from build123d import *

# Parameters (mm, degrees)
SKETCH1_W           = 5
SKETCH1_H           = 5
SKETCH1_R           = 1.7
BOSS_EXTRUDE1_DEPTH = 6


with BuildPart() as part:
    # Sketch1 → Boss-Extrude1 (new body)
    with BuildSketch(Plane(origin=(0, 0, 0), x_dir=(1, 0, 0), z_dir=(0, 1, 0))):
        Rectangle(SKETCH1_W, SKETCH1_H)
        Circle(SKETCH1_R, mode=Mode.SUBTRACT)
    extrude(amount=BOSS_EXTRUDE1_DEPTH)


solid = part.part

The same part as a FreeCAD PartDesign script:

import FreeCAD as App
import Part
import Sketcher
Q = App.Units.Quantity


def add_polygon(sketch, points):
    """Adds a closed chain of lines whose ends are joined by coincident constraints."""
    first, n = sketch.GeometryCount, len(points)
    for a, b in zip(points, points[1:] + points[:1]):
        sketch.addGeometry(Part.LineSegment(App.Vector(*a, 0), App.Vector(*b, 0)), False)
    for i in range(n):
        sketch.addConstraint(Sketcher.Constraint("Coincident", first + i, 2, first + (i + 1) % n, 1))

doc = App.newDocument("Part")
body = doc.addObject("PartDesign::Body", "Body")

# Sketch on XZ plane
sketch1 = body.newObject("Sketcher::SketchObject", "Sketch")
sketch1.AttachmentSupport = (doc.getObject("XZ_Plane"), [""])
sketch1.MapMode = "FlatFace"
add_polygon(sketch1, [(-2.5, -2.5), (-2.5, 2.5), (2.5, 2.5), (2.5, -2.5)])  # lines 0-3
sketch1.addGeometry(Part.Circle(App.Vector(0, 0, 0), App.Vector(0, 0, 1), 1.7), False)  # 4
sketch1.addConstraint([
    Sketcher.Constraint("Vertical", 0),
    Sketcher.Constraint("Horizontal", 1),
    Sketcher.Constraint("Vertical", 2),
    Sketcher.Constraint("Horizontal", 3),
    Sketcher.Constraint("Coincident", 4, 3, -1, 1),
    Sketcher.Constraint("Symmetric", 0, 2, 2, 2, -1, 1),
    Sketcher.Constraint("Equal", 3, 0),
    Sketcher.Constraint("Diameter", 4, Q("3.4 mm")),
    Sketcher.Constraint("DistanceX", 1, 1, 1, 2, Q("5 mm")),
])
pad1 = body.newObject("PartDesign::Pad", "Pad")
pad1.Profile = sketch1
pad1.Length = 6
pad1.Reversed = True

doc.recompute()
